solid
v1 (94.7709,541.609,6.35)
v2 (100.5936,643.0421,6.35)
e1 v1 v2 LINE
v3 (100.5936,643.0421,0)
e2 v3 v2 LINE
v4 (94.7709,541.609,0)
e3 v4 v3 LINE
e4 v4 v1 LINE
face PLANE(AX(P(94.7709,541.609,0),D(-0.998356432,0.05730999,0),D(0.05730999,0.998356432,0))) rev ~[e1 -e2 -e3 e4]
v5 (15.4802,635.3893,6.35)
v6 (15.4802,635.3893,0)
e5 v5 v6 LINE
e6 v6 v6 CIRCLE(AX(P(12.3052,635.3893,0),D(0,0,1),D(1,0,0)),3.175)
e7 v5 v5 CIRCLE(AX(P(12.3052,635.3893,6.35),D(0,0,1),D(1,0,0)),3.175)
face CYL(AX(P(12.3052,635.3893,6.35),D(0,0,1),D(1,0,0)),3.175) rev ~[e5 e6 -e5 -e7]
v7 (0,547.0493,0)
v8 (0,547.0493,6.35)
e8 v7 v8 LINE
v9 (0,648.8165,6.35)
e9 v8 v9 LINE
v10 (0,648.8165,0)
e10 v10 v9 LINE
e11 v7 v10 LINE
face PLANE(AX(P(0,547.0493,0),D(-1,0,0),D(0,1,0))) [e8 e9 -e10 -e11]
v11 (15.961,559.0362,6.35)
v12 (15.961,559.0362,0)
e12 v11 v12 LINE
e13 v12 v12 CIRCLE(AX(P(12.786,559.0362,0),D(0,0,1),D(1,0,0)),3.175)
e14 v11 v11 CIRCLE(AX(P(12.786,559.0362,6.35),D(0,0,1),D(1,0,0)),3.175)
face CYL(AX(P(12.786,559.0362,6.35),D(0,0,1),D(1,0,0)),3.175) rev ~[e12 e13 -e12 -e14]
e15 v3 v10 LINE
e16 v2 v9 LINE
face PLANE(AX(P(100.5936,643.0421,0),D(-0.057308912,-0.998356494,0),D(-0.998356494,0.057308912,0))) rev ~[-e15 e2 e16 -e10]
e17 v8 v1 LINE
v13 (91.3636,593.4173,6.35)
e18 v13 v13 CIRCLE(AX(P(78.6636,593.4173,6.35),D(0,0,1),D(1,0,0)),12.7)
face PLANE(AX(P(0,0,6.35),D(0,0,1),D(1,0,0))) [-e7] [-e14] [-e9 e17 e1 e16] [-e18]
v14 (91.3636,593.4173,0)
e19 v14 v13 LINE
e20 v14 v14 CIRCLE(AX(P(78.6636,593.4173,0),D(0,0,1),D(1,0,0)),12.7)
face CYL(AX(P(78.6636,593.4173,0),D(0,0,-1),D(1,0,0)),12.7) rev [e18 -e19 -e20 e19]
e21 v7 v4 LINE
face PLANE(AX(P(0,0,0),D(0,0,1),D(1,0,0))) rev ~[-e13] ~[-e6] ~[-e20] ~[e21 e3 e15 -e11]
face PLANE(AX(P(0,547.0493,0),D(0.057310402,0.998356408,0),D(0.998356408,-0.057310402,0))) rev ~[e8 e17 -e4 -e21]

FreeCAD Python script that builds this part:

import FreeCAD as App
import Part
import Sketcher

V = App.Vector
Q = App.Units.Quantity


def add_polygon(sketch, points):
    """Adds a closed chain of lines whose ends are joined by coincident constraints."""
    first, n = sketch.GeometryCount, len(points)
    for a, b in zip(points, points[1:] + points[:1]):
        sketch.addGeometry(Part.LineSegment(App.Vector(*a, 0), App.Vector(*b, 0)), False)
    for i in range(n):
        sketch.addConstraint(Sketcher.Constraint("Coincident", first + i, 2, first + (i + 1) % n, 1))

doc = App.newDocument("Part")
body = doc.addObject("PartDesign::Body", "Body")

sketch1 = body.newObject("Sketcher::SketchObject", "Sketch")
sketch1.AttachmentSupport = (doc.getObject("XY_Plane"), [""])
sketch1.MapMode = "FlatFace"
add_polygon(sketch1, [(0, 649), (0, 547), (95, 542), (101, 643)])
sketch1.addGeometry(Part.Circle(V(79, 593, 0), V(0, 0, 1), 13), False)
sketch1.addConstraint(Sketcher.Constraint("Vertical", 0))
sketch1.addConstraint(Sketcher.Constraint("PointOnObject", 0, 2, -2))
sketch1.addConstraint(Sketcher.Constraint("Perpendicular", 1, 2))
sketch1.addConstraint(Sketcher.Constraint("Perpendicular", 2, 3))
sketch1.addConstraint(Sketcher.Constraint("Diameter", 4, Q("1 in")))
sketch1.addConstraint(Sketcher.Constraint("Distance", 2, Q("4 in")))
sketch1.addConstraint(Sketcher.Constraint("Distance", 3, Q("3.9669 in")))
sketch1.addConstraint(Sketcher.Constraint("Distance", 1, 94.927))
sketch1.addConstraint(Sketcher.Constraint("DistanceX", -1, 1, 4, 3, Q("3.097 in")))
sketch1.addConstraint(Sketcher.Constraint("DistanceY", -1, 1, 1, 2, Q("21.3232 in")))
sketch1.addConstraint(Sketcher.Constraint("DistanceY", 0, 2, 4, 3, Q("1.8255 in")))
pad1 = body.newObject("PartDesign::Pad", "Pad")
pad1.Profile = sketch1
pad1.Length = Q("0.25 in")

sketch2 = body.newObject("Sketcher::SketchObject", "Sketch001")
sketch2.AttachmentSupport = (doc.getObject("XY_Plane"), [""])
sketch2.MapMode = "FlatFace"
sketch2.AttachmentOffset = App.Placement(V(0, 0, 0.25 * 25.4), App.Rotation())
sketch2.addGeometry(Part.Circle(V(12.3, 635.4, 0), V(0, 0, 1), 3.2), False)
sketch2.addGeometry(Part.Circle(V(12.8, 559, 0), V(0, 0, 1), 3.2), False)
sketch2.addConstraint(Sketcher.Constraint("Equal", 0, 1))
sketch2.addConstraint(Sketcher.Constraint("Diameter", 0, Q("0.25 in")))
sketch2.addConstraint(Sketcher.Constraint("DistanceY", -1, 1, 1, 3, Q("22.0093 in")))
sketch2.addConstraint(Sketcher.Constraint("DistanceX", -1, 1, 0, 3, 12.3052))
sketch2.addConstraint(Sketcher.Constraint("DistanceY", -1, 1, 0, 3, 635.3893))
sketch2.addConstraint(Sketcher.Constraint("DistanceX", -1, 1, 1, 3, 12.786))
pocket1 = body.newObject("PartDesign::Pocket", "Pocket")
pocket1.Profile = sketch2
pocket1.Type = "ThroughAll"

doc.recompute()
